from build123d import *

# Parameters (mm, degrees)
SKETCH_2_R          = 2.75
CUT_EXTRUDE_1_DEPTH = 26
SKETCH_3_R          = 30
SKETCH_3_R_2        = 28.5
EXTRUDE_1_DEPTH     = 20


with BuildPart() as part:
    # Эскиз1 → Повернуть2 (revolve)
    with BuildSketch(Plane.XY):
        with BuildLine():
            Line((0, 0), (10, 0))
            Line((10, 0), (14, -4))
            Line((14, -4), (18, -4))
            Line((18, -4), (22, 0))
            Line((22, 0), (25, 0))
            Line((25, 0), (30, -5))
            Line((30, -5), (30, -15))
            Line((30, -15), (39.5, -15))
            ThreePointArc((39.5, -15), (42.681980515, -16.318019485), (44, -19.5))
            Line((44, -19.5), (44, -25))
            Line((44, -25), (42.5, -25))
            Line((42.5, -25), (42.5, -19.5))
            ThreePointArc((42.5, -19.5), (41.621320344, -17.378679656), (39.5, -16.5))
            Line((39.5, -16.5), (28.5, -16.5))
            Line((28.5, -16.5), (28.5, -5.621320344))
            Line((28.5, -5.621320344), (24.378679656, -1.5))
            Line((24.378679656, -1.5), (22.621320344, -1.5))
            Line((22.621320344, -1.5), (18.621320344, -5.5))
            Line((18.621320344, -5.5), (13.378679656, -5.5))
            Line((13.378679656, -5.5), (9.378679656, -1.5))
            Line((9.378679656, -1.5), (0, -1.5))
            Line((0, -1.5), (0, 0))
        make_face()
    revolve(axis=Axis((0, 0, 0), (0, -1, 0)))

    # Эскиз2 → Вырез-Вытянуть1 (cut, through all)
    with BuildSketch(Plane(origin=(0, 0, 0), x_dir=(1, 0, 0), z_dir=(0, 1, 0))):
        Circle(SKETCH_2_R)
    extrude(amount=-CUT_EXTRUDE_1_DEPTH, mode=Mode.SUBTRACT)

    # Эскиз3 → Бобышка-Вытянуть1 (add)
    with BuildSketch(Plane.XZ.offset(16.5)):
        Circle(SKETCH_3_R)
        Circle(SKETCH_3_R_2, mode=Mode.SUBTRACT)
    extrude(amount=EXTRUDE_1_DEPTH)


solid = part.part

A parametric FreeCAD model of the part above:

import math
import FreeCAD as App
import Part
import Sketcher

V = App.Vector
Q = App.Units.Quantity

doc = App.newDocument("Part")
body = doc.addObject("PartDesign::Body", "Body")

# Sketch on XY plane
sketch1 = body.newObject("Sketcher::SketchObject", "Sketch")
sketch1.AttachmentSupport = (doc.getObject("XY_Plane"), [""])
sketch1.MapMode = "FlatFace"
sketch1.addGeometry([
    Part.LineSegment(V(10, 0, 0), V(0, 0, 0)),  # 0
    Part.LineSegment(V(0, 0, 0), V(0, -1.5, 0)),  # 1
    Part.LineSegment(V(0, -1.5, 0), V(9.4, -1.5, 0)),  # 2
    Part.LineSegment(V(9.4, -1.5, 0), V(13.4, -5.5, 0)),  # 3
    Part.LineSegment(V(13.4, -5.5, 0), V(18.6, -5.5, 0)),  # 4
    Part.LineSegment(V(18.6, -5.5, 0), V(22.6, -1.5, 0)),  # 5
    Part.LineSegment(V(22.6, -1.5, 0), V(24.4, -1.5, 0)),  # 6
    Part.LineSegment(V(24.4, -1.5, 0), V(28.5, -5.6, 0)),  # 7
    Part.LineSegment(V(28.5, -5.6, 0), V(28.5, -16.5, 0)),  # 8
    Part.LineSegment(V(28.5, -16.5, 0), V(39.5, -16.5, 0)),  # 9
    Part.ArcOfCircle(Part.Circle(V(39.5, -19.5, 0), V(0, 0, 1), 3), math.radians(0), math.radians(90)),  # 10
    Part.LineSegment(V(42.5, -19.5, 0), V(42.5, -25, 0)),  # 11
    Part.LineSegment(V(42.5, -25, 0), V(44, -25, 0)),  # 12
    Part.LineSegment(V(44, -25, 0), V(44, -19.5, 0)),  # 13
    Part.ArcOfCircle(Part.Circle(V(39.5, -19.5, 0), V(0, 0, 1), 4.5), math.radians(0), math.radians(90)),  # 14
    Part.LineSegment(V(39.5, -15, 0), V(30, -15, 0)),  # 15
    Part.LineSegment(V(30, -15, 0), V(30, -5, 0)),  # 16
    Part.LineSegment(V(30, -5, 0), V(25, 0, 0)),  # 17
    Part.LineSegment(V(25, 0, 0), V(22, 0, 0)),  # 18
    Part.LineSegment(V(22, 0, 0), V(18, -4, 0)),  # 19
    Part.LineSegment(V(18, -4, 0), V(14, -4, 0)),  # 20
    Part.LineSegment(V(14, -4, 0), V(10, 0, 0)),  # 21
], False)
sketch1.addConstraint([
    Sketcher.Constraint("Coincident", 0, 2, 1, 1),
    Sketcher.Constraint("Coincident", 1, 2, 2, 1),
    Sketcher.Constraint("Coincident", 2, 2, 3, 1),
    Sketcher.Constraint("Coincident", 3, 2, 4, 1),
    Sketcher.Constraint("Coincident", 4, 2, 5, 1),
    Sketcher.Constraint("Coincident", 5, 2, 6, 1),
    Sketcher.Constraint("Coincident", 6, 2, 7, 1),
    Sketcher.Constraint("Coincident", 7, 2, 8, 1),
    Sketcher.Constraint("Coincident", 8, 2, 9, 1),
    Sketcher.Constraint("Tangent", 9, 2, 10, 2),
    Sketcher.Constraint("Tangent", 10, 1, 11, 1),
    Sketcher.Constraint("Coincident", 11, 2, 12, 1),
    Sketcher.Constraint("Coincident", 12, 2, 13, 1),
    Sketcher.Constraint("Tangent", 13, 2, 14, 1),
    Sketcher.Constraint("Tangent", 14, 2, 15, 1),
    Sketcher.Constraint("Coincident", 15, 2, 16, 1),
    Sketcher.Constraint("Coincident", 16, 2, 17, 1),
    Sketcher.Constraint("Coincident", 17, 2, 18, 1),
    Sketcher.Constraint("Coincident", 18, 2, 19, 1),
    Sketcher.Constraint("Coincident", 19, 2, 20, 1),
    Sketcher.Constraint("Coincident", 20, 2, 21, 1),
    Sketcher.Constraint("Coincident", 21, 2, 0, 1),
    Sketcher.Constraint("Horizontal", 0),
    Sketcher.Constraint("Vertical", 1),
    Sketcher.Constraint("Horizontal", 2),
    Sketcher.Constraint("Horizontal", 4),
    Sketcher.Constraint("Horizontal", 6),
    Sketcher.Constraint("Vertical", 8),
    Sketcher.Constraint("Horizontal", 9),
    Sketcher.Constraint("Vertical", 11),
    Sketcher.Constraint("Horizontal", 12),
    Sketcher.Constraint("Vertical", 13),
    Sketcher.Constraint("Horizontal", 15),
    Sketcher.Constraint("Vertical", 16),
    Sketcher.Constraint("Horizontal", 18),
    Sketcher.Constraint("Horizontal", 20),
    Sketcher.Constraint("Coincident", 0, 2, -1, 1),
    Sketcher.Constraint("Coincident", 14, 3, 10, 3),
    Sketcher.Constraint("PointOnObject", 17, 2, -1),
    Sketcher.Constraint("Perpendicular", 3, 5),
    Sketcher.Constraint("Perpendicular", 5, 7),
    Sketcher.Constraint("Parallel", 7, 17),
    Sketcher.Constraint("Perpendicular", 17, 19),
    Sketcher.Constraint("Perpendicular", 19, 21),
    Sketcher.Constraint("Horizontal", 2, 2, 5, 2),
    Sketcher.Constraint("Equal", 12, 1),
    Sketcher.Constraint("Equal", 0, 16),
    Sketcher.Constraint("Equal", 3, 5),
    Sketcher.Constraint("Equal", 5, 19),
    Sketcher.Constraint("Radius", 10, Q("3 mm")),
    Sketcher.Constraint("Radius", 14, Q("4.5 mm")),
    Sketcher.Constraint("DistanceX", 0, 2, 0, 1, Q("10 mm")),
    Sketcher.Constraint("DistanceX", 9, 1, 9, 2, Q("11 mm")),
    Sketcher.Constraint("DistanceX", 18, 2, 18, 1, Q("3 mm")),
    Sketcher.Constraint("DistanceX", 20, 2, 20, 1, Q("4 mm")),
    Sketcher.Constraint("DistanceX", 15, 2, 15, 1, Q("9.5 mm")),
    Sketcher.Constraint("DistanceY", 11, 2, 11, 1, Q("5.5 mm")),
    Sketcher.Constraint("DistanceY", 11, 2, -1, 1, Q("25 mm")),
    Sketcher.Constraint("DistanceX", -1, 1, 12, 2, Q("44 mm")),
    Sketcher.Constraint("DistanceX", 3, 2, 6, 2, Q("11 mm")),
    Sketcher.Constraint("DistanceX", 2, 1, 2, 2, Q("9.37868 mm")),
    Sketcher.Constraint("DistanceX", 4, 1, 4, 2, Q("5.242641 mm")),
])
revolution = body.newObject("PartDesign::Revolution", "Revolution")
revolution.Profile = sketch1
revolution.ReferenceAxis = (sketch1, ["V_Axis"])
revolution.Angle = 360

# Sketch on XZ plane
sketch2 = body.newObject("Sketcher::SketchObject", "Sketch001")
sketch2.AttachmentSupport = (doc.getObject("XZ_Plane"), [""])
sketch2.MapMode = "FlatFace"
sketch2.addGeometry(Part.Circle(V(0, 0, 0), V(0, 0, 1), 2.8), False)
sketch2.addConstraint([
    Sketcher.Constraint("Coincident", 0, 3, -1, 1),
    Sketcher.Constraint("Diameter", 0, Q("5.5 mm")),
])
pocket1 = body.newObject("PartDesign::Pocket", "Pocket")
pocket1.Profile = sketch2
pocket1.Type = "ThroughAll"
pocket1.Reversed = True

# Sketch on XZ plane
sketch3 = body.newObject("Sketcher::SketchObject", "Sketch002")
sketch3.AttachmentSupport = (doc.getObject("XZ_Plane"), [""])
sketch3.MapMode = "FlatFace"
sketch3.AttachmentOffset = App.Placement(V(0, 0, 16.5), App.Rotation())
sketch3.addGeometry([
    Part.Circle(V(0, 0, 0), V(0, 0, 1), 30),
    Part.Circle(V(0, 0, 0), V(0, 0, 1), 28),
], False)
sketch3.addConstraint([
    Sketcher.Constraint("Coincident", 0, 3, -1, 1),
    Sketcher.Constraint("Coincident", 1, 3, -1, 1),
    Sketcher.Constraint("Diameter", 0, Q("60 mm")),
    Sketcher.Constraint("Diameter", 1, Q("57 mm")),
])
pad1 = body.newObject("PartDesign::Pad", "Pad")
pad1.Profile = sketch3
pad1.Length = 20

doc.recompute()
